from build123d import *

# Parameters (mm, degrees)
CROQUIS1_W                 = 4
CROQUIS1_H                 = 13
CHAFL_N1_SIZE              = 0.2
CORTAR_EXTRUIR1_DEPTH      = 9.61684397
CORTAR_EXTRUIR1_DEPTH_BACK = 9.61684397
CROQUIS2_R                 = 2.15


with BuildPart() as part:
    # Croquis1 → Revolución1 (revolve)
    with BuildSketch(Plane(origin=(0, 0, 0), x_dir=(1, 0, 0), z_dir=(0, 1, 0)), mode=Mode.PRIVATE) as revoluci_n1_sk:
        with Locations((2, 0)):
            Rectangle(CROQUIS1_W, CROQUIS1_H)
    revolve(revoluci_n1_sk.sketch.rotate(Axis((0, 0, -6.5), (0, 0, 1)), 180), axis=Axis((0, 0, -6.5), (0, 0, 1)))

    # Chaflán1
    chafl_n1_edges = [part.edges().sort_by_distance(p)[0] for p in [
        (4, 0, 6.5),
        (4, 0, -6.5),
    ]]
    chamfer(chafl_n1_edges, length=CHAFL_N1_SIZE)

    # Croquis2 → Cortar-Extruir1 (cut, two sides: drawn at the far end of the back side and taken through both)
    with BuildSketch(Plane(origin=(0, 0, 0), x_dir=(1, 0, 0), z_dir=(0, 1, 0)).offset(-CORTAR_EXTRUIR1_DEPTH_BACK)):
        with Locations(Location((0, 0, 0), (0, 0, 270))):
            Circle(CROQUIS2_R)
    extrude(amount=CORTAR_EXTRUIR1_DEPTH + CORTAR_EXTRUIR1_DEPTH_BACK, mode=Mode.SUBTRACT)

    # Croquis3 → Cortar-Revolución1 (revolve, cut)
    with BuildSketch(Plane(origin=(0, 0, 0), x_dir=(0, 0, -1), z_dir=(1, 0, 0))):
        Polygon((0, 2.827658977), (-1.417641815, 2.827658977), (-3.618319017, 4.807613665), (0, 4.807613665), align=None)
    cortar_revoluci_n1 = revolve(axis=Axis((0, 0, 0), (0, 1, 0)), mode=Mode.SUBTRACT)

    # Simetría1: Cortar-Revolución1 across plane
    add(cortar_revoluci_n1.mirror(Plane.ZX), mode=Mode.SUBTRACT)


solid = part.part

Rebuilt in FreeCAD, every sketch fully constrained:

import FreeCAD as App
import Part
import Sketcher

V = App.Vector
Q = App.Units.Quantity


def edges_at(feature, points):
    """Names of the edges that pass closest to the given points."""
    edges = feature.Shape.Edges
    near = lambda p: min(range(len(edges)), key=lambda i: edges[i].distToShape(Part.Vertex(*p))[0])
    return sorted({f"Edge{near(p) + 1}" for p in points})


def add_polygon(sketch, points):
    """Adds a closed chain of lines whose ends are joined by coincident constraints."""
    first, n = sketch.GeometryCount, len(points)
    for a, b in zip(points, points[1:] + points[:1]):
        sketch.addGeometry(Part.LineSegment(App.Vector(*a, 0), App.Vector(*b, 0)), False)
    for i in range(n):
        sketch.addConstraint(Sketcher.Constraint("Coincident", first + i, 2, first + (i + 1) % n, 1))

doc = App.newDocument("Part")
body = doc.addObject("PartDesign::Body", "Body")

# Sketch on XZ plane
sketch1 = doc.addObject("Sketcher::SketchObject", "Sketch")
body.addObject(sketch1)
sketch1.AttachmentSupport = (doc.XZ_Plane, [""])
sketch1.MapMode = "FlatFace"
add_polygon(sketch1, [(0, -6.5), (0, 6.5), (4, 6.5), (4, -6.5)])  # lines 0-3
sketch1.addConstraint(Sketcher.Constraint("Vertical", 0))
sketch1.addConstraint(Sketcher.Constraint("Horizontal", 1))
sketch1.addConstraint(Sketcher.Constraint("Vertical", 2))
sketch1.addConstraint(Sketcher.Constraint("Horizontal", 3))
sketch1.addConstraint(Sketcher.Constraint("Symmetric", 0, 2, 3, 2, -1, 1))
sketch1.addConstraint(Sketcher.Constraint("DistanceX", 1, 1, 1, 2, Q("4 mm")))
sketch1.addConstraint(Sketcher.Constraint("DistanceY", 0, 1, 0, 2, Q("13 mm")))
revolution = doc.addObject("PartDesign::Revolution", "Revolution")
body.addObject(revolution)
revolution.Profile = sketch1
revolution.ReferenceAxis = (sketch1, ["V_Axis"])
revolution.Angle = 360
doc.recompute()

chamfer = doc.addObject("PartDesign::Chamfer", "Chamfer")
body.addObject(chamfer)
chamfer.Base = (revolution, edges_at(revolution, [(4, 0, 6.5), (4, 0, -6.5)]))
chamfer.Size = 0.2

# Sketch on XZ plane
sketch2 = doc.addObject("Sketcher::SketchObject", "Sketch001")
body.addObject(sketch2)
sketch2.AttachmentSupport = (doc.XZ_Plane, [""])
sketch2.MapMode = "FlatFace"
sketch2.addGeometry(Part.Circle(V(0, 0, 0), V(0, 0, 1), 2.1), False)
sketch2.addConstraint(Sketcher.Constraint("Coincident", 0, 3, -1, 1))
sketch2.addConstraint(Sketcher.Constraint("Diameter", 0, Q("4.3 mm")))
pocket1 = doc.addObject("PartDesign::Pocket", "Pocket")
body.addObject(pocket1)
pocket1.Profile = sketch2
pocket1.Type = "ThroughAll"
pocket1.Midplane = True

# Sketch on YZ plane
sketch3 = doc.addObject("Sketcher::SketchObject", "Sketch002")
body.addObject(sketch3)
sketch3.AttachmentSupport = (doc.YZ_Plane, [""])
sketch3.MapMode = "FlatFace"
add_polygon(sketch3, [(2.8, 1.4), (2.8, 0), (4.8, 0), (4.8, 3.6)])  # lines 0-3
sketch3.addConstraint(Sketcher.Constraint("Vertical", 0))
sketch3.addConstraint(Sketcher.Constraint("Horizontal", 1))
sketch3.addConstraint(Sketcher.Constraint("Vertical", 2))
sketch3.addConstraint(Sketcher.Constraint("PointOnObject", 0, 2, -1))
sketch3.addConstraint(Sketcher.Constraint("DistanceY", 0, 2, 0, 1, Q("1.417642 mm")))
sketch3.addConstraint(Sketcher.Constraint("DistanceY", 2, 1, 2, 2, Q("3.618319 mm")))
sketch3.addConstraint(Sketcher.Constraint("Distance", 3, Q("2.96027 mm")))
sketch3.addConstraint(Sketcher.Constraint("DistanceX", -1, 1, 0, 2, Q("2.827659 mm")))
groove = doc.addObject("PartDesign::Groove", "Groove")
body.addObject(groove)
groove.Profile = sketch3
groove.ReferenceAxis = (sketch3, ["H_Axis"])
groove.Angle = 360
doc.recompute()

mirrored = doc.addObject("PartDesign::Mirrored", "Mirrored")
body.addObject(mirrored)
mirrored.Originals = [groove]
mirrored.MirrorPlane = (doc.XZ_Plane, [""])
body.Tip = mirrored

doc.recompute()
